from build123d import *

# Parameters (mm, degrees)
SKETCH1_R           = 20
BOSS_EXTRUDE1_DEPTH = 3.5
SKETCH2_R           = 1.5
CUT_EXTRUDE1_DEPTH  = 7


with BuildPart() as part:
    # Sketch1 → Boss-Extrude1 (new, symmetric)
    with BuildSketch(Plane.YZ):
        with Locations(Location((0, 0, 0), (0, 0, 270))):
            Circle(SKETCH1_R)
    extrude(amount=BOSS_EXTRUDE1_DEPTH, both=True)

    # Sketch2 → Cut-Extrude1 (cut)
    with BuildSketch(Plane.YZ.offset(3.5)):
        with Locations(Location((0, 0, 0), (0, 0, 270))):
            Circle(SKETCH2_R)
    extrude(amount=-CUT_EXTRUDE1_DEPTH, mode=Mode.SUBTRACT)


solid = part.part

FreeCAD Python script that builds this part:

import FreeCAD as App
import Part
import Sketcher
from FreeCAD import Vector

doc = App.newDocument("Part")
body = doc.addObject("PartDesign::Body", "Body")

# Sketch on YZ plane
sketch1 = body.newObject("Sketcher::SketchObject", "Sketch")
sketch1.AttachmentSupport = (doc.getObject("YZ_Plane"), [""])
sketch1.MapMode = "FlatFace"
sketch1.addGeometry(Part.Circle(Vector(0, 0, 0), Vector(0, 0, 1), 20), False)
sketch1.addConstraint([
    Sketcher.Constraint("Coincident", 0, 3, -1, 1),
    Sketcher.Constraint("Diameter", 0, 40.0),
])
pad1 = body.newObject("PartDesign::Pad", "Pad")
pad1.Profile = sketch1
pad1.Length = 7
pad1.Midplane = True

# Sketch on YZ plane
sketch2 = body.newObject("Sketcher::SketchObject", "Sketch001")
sketch2.AttachmentSupport = (doc.getObject("YZ_Plane"), [""])
sketch2.MapMode = "FlatFace"
sketch2.AttachmentOffset = App.Placement(Vector(0, 0, 3.5), App.Rotation())
sketch2.addGeometry(Part.Circle(Vector(0, 0, 0), Vector(0, 0, 1), 1.5), False)
sketch2.addConstraint([
    Sketcher.Constraint("Coincident", 0, 3, -1, 1),
    Sketcher.Constraint("Diameter", 0, 3.0),
])
pocket1 = body.newObject("PartDesign::Pocket", "Pocket")
pocket1.Profile = sketch2
pocket1.Length = 7

doc.recompute()
